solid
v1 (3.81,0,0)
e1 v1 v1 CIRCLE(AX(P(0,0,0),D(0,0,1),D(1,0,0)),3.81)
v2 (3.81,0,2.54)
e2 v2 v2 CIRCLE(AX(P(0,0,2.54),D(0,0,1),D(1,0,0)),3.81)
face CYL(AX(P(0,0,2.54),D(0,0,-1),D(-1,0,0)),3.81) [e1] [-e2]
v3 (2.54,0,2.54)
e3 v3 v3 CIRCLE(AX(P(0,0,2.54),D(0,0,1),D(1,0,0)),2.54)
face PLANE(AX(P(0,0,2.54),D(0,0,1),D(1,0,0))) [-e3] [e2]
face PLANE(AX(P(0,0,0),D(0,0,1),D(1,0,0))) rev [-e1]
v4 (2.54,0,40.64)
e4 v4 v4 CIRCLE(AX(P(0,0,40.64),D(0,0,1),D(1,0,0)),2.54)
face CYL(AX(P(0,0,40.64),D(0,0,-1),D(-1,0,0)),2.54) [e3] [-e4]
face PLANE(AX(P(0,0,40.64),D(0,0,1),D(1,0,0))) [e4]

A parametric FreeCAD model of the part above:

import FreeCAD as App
import Part
import Sketcher
from FreeCAD import Vector
Q = App.Units.Quantity

doc = App.newDocument("Part")
body = doc.addObject("PartDesign::Body", "Body")

# Sketch on XY plane
sketch1 = doc.addObject("Sketcher::SketchObject", "Sketch")
body.addObject(sketch1)
sketch1.AttachmentSupport = (doc.XY_Plane, [""])
sketch1.MapMode = "FlatFace"
sketch1.addGeometry(Part.Circle(Vector(0, 0, 0), Vector(0, 0, 1), 3.8), False)
sketch1.addConstraint([
    Sketcher.Constraint("Coincident", 0, 3, -1, 1),
    Sketcher.Constraint("Diameter", 0, Q("0.3 in")),
])
pad1 = doc.addObject("PartDesign::Pad", "Pad")
body.addObject(pad1)
pad1.Profile = sketch1
pad1.Length = Q("0.1 in")

# Sketch on XY plane
sketch2 = doc.addObject("Sketcher::SketchObject", "Sketch001")
body.addObject(sketch2)
sketch2.AttachmentSupport = (doc.XY_Plane, [""])
sketch2.MapMode = "FlatFace"
sketch2.AttachmentOffset = App.Placement(Vector(0, 0, 0.1 * 25.4), App.Rotation())
sketch2.addGeometry(Part.Circle(Vector(0, 0, 0), Vector(0, 0, 1), 2.5), False)
sketch2.addConstraint([
    Sketcher.Constraint("Coincident", 0, 3, -1, 1),
    Sketcher.Constraint("Diameter", 0, Q("0.2 in")),
])
pad2 = doc.addObject("PartDesign::Pad", "Pad001")
body.addObject(pad2)
pad2.Profile = sketch2
pad2.Length = Q("1.5 in")

doc.recompute()
